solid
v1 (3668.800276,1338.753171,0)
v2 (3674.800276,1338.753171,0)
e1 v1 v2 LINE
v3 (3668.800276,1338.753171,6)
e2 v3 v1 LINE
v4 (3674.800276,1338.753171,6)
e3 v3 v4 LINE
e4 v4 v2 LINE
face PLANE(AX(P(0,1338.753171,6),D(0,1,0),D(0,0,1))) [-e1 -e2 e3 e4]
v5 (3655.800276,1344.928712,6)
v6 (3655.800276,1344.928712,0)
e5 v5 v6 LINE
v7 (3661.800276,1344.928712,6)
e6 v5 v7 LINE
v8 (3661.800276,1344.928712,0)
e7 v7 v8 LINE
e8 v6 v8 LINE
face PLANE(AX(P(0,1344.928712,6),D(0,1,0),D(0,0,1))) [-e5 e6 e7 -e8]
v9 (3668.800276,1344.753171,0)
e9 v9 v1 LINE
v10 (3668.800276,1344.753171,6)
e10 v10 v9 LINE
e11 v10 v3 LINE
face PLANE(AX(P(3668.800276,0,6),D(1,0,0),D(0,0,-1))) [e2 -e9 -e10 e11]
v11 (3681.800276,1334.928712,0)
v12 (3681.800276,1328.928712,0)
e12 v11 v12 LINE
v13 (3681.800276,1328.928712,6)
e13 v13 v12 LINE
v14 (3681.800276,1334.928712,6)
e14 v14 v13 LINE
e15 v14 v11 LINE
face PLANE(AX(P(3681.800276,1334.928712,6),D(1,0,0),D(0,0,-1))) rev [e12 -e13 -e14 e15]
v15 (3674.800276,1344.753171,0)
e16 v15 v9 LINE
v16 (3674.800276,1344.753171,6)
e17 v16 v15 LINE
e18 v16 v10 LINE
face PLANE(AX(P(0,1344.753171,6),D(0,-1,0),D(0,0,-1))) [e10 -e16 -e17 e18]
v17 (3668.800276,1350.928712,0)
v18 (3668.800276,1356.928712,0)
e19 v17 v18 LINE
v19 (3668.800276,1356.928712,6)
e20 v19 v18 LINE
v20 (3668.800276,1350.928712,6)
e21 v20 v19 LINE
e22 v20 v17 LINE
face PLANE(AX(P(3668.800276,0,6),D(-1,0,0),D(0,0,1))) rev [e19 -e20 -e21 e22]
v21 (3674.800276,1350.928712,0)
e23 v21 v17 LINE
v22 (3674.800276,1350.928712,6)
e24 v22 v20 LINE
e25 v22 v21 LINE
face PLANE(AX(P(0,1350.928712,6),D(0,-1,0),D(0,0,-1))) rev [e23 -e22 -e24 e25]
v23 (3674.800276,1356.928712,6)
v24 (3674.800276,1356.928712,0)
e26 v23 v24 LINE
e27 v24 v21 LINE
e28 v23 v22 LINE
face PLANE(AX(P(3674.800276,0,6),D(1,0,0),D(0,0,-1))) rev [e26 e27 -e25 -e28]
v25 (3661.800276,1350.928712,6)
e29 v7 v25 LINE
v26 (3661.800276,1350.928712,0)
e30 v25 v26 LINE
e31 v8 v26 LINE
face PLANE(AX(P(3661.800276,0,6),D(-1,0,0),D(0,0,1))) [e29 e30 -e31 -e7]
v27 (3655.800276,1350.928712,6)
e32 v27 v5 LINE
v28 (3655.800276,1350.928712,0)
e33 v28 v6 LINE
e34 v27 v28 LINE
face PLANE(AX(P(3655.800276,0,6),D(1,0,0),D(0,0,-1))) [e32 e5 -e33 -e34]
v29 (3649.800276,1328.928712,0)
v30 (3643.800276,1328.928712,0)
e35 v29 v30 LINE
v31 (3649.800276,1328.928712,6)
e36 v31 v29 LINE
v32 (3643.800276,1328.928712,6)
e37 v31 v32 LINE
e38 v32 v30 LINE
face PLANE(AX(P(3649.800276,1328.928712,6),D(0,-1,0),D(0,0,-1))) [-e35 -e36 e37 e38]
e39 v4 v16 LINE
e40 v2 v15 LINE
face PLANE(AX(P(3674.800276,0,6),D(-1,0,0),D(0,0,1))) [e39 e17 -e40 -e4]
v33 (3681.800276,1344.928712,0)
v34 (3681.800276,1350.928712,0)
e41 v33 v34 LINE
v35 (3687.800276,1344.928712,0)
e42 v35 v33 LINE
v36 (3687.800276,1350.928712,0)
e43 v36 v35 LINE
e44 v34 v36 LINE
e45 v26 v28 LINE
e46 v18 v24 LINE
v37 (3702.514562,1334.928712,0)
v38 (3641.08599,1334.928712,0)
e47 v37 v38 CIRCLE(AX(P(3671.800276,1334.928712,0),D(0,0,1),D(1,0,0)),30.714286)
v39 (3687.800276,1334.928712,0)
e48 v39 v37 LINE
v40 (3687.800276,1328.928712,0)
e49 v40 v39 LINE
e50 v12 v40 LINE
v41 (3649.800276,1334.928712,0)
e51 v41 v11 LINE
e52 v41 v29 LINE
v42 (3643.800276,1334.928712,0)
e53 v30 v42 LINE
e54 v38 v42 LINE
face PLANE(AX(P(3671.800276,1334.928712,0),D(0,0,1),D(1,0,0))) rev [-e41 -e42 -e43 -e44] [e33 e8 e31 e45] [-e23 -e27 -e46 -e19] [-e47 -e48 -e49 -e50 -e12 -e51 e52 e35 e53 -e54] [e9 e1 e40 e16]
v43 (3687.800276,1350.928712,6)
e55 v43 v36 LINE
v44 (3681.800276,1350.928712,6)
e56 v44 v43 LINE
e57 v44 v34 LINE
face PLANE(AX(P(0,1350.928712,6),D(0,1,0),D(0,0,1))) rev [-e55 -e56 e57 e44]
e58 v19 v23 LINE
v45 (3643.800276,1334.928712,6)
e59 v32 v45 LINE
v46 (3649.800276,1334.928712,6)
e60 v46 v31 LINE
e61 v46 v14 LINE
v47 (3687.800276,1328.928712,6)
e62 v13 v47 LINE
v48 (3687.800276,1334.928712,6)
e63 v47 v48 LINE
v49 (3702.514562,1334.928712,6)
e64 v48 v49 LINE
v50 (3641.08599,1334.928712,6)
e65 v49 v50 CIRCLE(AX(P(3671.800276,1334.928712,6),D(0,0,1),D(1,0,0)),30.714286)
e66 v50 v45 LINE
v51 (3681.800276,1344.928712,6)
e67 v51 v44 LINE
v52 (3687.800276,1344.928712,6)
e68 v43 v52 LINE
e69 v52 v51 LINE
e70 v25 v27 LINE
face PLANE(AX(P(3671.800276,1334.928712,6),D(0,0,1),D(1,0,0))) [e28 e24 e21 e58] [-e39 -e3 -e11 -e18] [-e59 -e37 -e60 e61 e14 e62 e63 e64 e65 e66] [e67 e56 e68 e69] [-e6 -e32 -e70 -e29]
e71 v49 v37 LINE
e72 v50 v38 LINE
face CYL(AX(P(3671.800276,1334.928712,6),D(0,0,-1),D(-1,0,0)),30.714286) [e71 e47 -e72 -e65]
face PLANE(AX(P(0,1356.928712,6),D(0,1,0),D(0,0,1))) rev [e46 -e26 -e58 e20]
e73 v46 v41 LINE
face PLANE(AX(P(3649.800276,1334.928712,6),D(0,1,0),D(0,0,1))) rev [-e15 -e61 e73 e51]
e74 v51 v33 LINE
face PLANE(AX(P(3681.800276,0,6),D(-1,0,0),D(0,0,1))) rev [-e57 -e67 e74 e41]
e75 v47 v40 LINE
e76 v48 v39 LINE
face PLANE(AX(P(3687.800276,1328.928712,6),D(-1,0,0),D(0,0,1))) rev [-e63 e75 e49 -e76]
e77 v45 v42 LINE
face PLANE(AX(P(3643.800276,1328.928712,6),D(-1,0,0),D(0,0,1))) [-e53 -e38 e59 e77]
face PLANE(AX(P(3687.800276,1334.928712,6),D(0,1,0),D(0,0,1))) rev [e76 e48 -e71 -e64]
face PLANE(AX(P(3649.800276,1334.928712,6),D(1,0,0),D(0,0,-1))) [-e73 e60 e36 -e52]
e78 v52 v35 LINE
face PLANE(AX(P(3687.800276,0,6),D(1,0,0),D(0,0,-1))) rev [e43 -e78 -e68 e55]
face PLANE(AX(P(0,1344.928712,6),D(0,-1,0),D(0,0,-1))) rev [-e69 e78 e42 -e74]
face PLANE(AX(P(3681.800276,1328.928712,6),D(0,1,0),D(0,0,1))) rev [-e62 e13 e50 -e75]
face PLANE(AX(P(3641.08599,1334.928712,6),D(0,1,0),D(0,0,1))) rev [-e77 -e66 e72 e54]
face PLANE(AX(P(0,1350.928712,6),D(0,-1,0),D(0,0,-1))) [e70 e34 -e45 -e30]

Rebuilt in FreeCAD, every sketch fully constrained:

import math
import FreeCAD as App
import Part
import Sketcher
from FreeCAD import Vector
Q = App.Units.Quantity


def add_polygon(sketch, points):
    """Adds a closed chain of lines whose ends are joined by coincident constraints."""
    first, n = sketch.GeometryCount, len(points)
    for a, b in zip(points, points[1:] + points[:1]):
        sketch.addGeometry(Part.LineSegment(App.Vector(*a, 0), App.Vector(*b, 0)), False)
    for i in range(n):
        sketch.addConstraint(Sketcher.Constraint("Coincident", first + i, 2, first + (i + 1) % n, 1))

doc = App.newDocument("Part")
body = doc.addObject("PartDesign::Body", "Body")

# Sketch on XY plane
sketch1 = doc.addObject("Sketcher::SketchObject", "Sketch")
body.addObject(sketch1)
sketch1.AttachmentSupport = (doc.XY_Plane, [""])
sketch1.MapMode = "FlatFace"
sketch1.addGeometry(Part.LineSegment(Vector(3681.8, 1334.9, 0), Vector(3681.8, 1328.9, 0)), False)  # 0
sketch1.addGeometry(Part.LineSegment(Vector(3681.8, 1328.9, 0), Vector(3687.8, 1328.9, 0)), False)  # 1
sketch1.addGeometry(Part.LineSegment(Vector(3687.8, 1328.9, 0), Vector(3687.8, 1334.9, 0)), False)  # 2
sketch1.addGeometry(Part.LineSegment(Vector(3687.8, 1334.9, 0), Vector(3702.5, 1334.9, 0)), False)  # 3
sketch1.addGeometry(Part.ArcOfCircle(Part.Circle(Vector(3671.8, 1334.9, 0), Vector(0, 0, 1), 30.7), math.radians(0), math.radians(180)), False)  # 4
sketch1.addGeometry(Part.LineSegment(Vector(3641.1, 1334.9, 0), Vector(3643.8, 1334.9, 0)), False)  # 5
sketch1.addGeometry(Part.LineSegment(Vector(3643.8, 1334.9, 0), Vector(3643.8, 1328.9, 0)), False)  # 6
sketch1.addGeometry(Part.LineSegment(Vector(3643.8, 1328.9, 0), Vector(3649.8, 1328.9, 0)), False)  # 7
sketch1.addGeometry(Part.LineSegment(Vector(3649.8, 1328.9, 0), Vector(3649.8, 1334.9, 0)), False)  # 8
sketch1.addGeometry(Part.LineSegment(Vector(3649.8, 1334.9, 0), Vector(3681.8, 1334.9, 0)), False)  # 9
add_polygon(sketch1, [(3674.8, 1338.8), (3668.8, 1338.8), (3668.8, 1344.8), (3674.8, 1344.8)])  # lines 10-13
add_polygon(sketch1, [(3661.8, 1344.9), (3655.8, 1344.9), (3655.8, 1350.9), (3661.8, 1350.9)])  # lines 14-17
add_polygon(sketch1, [(3687.8, 1344.9), (3681.8, 1344.9), (3681.8, 1350.9), (3687.8, 1350.9)])  # lines 18-21
add_polygon(sketch1, [(3674.8, 1350.9), (3668.8, 1350.9), (3668.8, 1356.9), (3674.8, 1356.9)])  # lines 22-25
sketch1.addConstraint(Sketcher.Constraint("Coincident", 0, 2, 1, 1))
sketch1.addConstraint(Sketcher.Constraint("Coincident", 1, 2, 2, 1))
sketch1.addConstraint(Sketcher.Constraint("Coincident", 2, 2, 3, 1))
sketch1.addConstraint(Sketcher.Constraint("Coincident", 3, 2, 4, 1))
sketch1.addConstraint(Sketcher.Constraint("Coincident", 4, 2, 5, 1))
sketch1.addConstraint(Sketcher.Constraint("Coincident", 5, 2, 6, 1))
sketch1.addConstraint(Sketcher.Constraint("Coincident", 6, 2, 7, 1))
sketch1.addConstraint(Sketcher.Constraint("Coincident", 7, 2, 8, 1))
sketch1.addConstraint(Sketcher.Constraint("Coincident", 8, 2, 9, 1))
sketch1.addConstraint(Sketcher.Constraint("Coincident", 9, 2, 0, 1))
sketch1.addConstraint(Sketcher.Constraint("Vertical", 0))
sketch1.addConstraint(Sketcher.Constraint("Horizontal", 1))
sketch1.addConstraint(Sketcher.Constraint("Vertical", 2))
sketch1.addConstraint(Sketcher.Constraint("Horizontal", 3))
sketch1.addConstraint(Sketcher.Constraint("Horizontal", 5))
sketch1.addConstraint(Sketcher.Constraint("Vertical", 6))
sketch1.addConstraint(Sketcher.Constraint("Horizontal", 7))
sketch1.addConstraint(Sketcher.Constraint("Vertical", 8))
sketch1.addConstraint(Sketcher.Constraint("Horizontal", 9))
sketch1.addConstraint(Sketcher.Constraint("Horizontal", 10))
sketch1.addConstraint(Sketcher.Constraint("Vertical", 11))
sketch1.addConstraint(Sketcher.Constraint("Horizontal", 12))
sketch1.addConstraint(Sketcher.Constraint("Vertical", 13))
sketch1.addConstraint(Sketcher.Constraint("Horizontal", 14))
sketch1.addConstraint(Sketcher.Constraint("Vertical", 15))
sketch1.addConstraint(Sketcher.Constraint("Horizontal", 16))
sketch1.addConstraint(Sketcher.Constraint("Vertical", 17))
sketch1.addConstraint(Sketcher.Constraint("Horizontal", 18))
sketch1.addConstraint(Sketcher.Constraint("Vertical", 19))
sketch1.addConstraint(Sketcher.Constraint("Horizontal", 20))
sketch1.addConstraint(Sketcher.Constraint("Vertical", 21))
sketch1.addConstraint(Sketcher.Constraint("Horizontal", 22))
sketch1.addConstraint(Sketcher.Constraint("Vertical", 23))
sketch1.addConstraint(Sketcher.Constraint("Horizontal", 24))
sketch1.addConstraint(Sketcher.Constraint("Vertical", 25))
sketch1.addConstraint(Sketcher.Constraint("Horizontal", 4, 3, 2, 2))
sketch1.addConstraint(Sketcher.Constraint("Horizontal", 3, 2, 4, 2))
sketch1.addConstraint(Sketcher.Constraint("Horizontal", 1, 2, 6, 2))
sketch1.addConstraint(Sketcher.Constraint("Horizontal", 5, 2, 8, 2))
sketch1.addConstraint(Sketcher.Constraint("Horizontal", 17, 2, 18, 2))
sketch1.addConstraint(Sketcher.Constraint("Horizontal", 16, 2, 19, 2))
sketch1.addConstraint(Sketcher.Constraint("Horizontal", 20, 2, 22, 2))
sketch1.addConstraint(Sketcher.Constraint("Vertical", 9, 2, 18, 2))
sketch1.addConstraint(Sketcher.Constraint("Vertical", 2, 2, 20, 2))
sketch1.addConstraint(Sketcher.Constraint("Vertical", 11, 2, 22, 2))
sketch1.addConstraint(Sketcher.Constraint("Vertical", 13, 2, 24, 2))
sketch1.addConstraint(Sketcher.Constraint("Equal", 1, 7))
sketch1.addConstraint(Sketcher.Constraint("Equal", 7, 10))
sketch1.addConstraint(Sketcher.Constraint("Equal", 12, 14))
sketch1.addConstraint(Sketcher.Constraint("Equal", 24, 0))
sketch1.addConstraint(Sketcher.Constraint("Equal", 8, 11))
sketch1.addConstraint(Sketcher.Constraint("Equal", 13, 15))
sketch1.addConstraint(Sketcher.Constraint("Equal", 21, 23))
sketch1.addConstraint(Sketcher.Constraint("DistanceX", 1, 1, 1, 2, Q("6 mm")))
sketch1.addConstraint(Sketcher.Constraint("DistanceX", 9, 1, 9, 2, Q("32 mm")))
sketch1.addConstraint(Sketcher.Constraint("DistanceX", 4, 3, 0, 2, Q("10 mm")))
sketch1.addConstraint(Sketcher.Constraint("DistanceX", 10, 2, 4, 3, Q("3 mm")))
sketch1.addConstraint(Sketcher.Constraint("DistanceX", 8, 2, 14, 2, Q("6 mm")))
sketch1.addConstraint(Sketcher.Constraint("DistanceY", 8, 2, 14, 2, Q("10 mm")))
sketch1.addConstraint(Sketcher.Constraint("Radius", 4, Q("30.714286 mm")))
sketch1.addConstraint(Sketcher.Constraint("DistanceY", -1, 1, 4, 3, Q("1334.928712 mm")))
sketch1.addConstraint(Sketcher.Constraint("DistanceX", -1, 1, 3, 2, Q("3702.514562 mm")))
sketch1.addConstraint(Sketcher.Constraint("DistanceY", -1, 1, 10, 2, Q("1338.753171 mm")))
pad1 = doc.addObject("PartDesign::Pad", "Pad")
body.addObject(pad1)
pad1.Profile = sketch1
pad1.Length = 6

doc.recompute()
